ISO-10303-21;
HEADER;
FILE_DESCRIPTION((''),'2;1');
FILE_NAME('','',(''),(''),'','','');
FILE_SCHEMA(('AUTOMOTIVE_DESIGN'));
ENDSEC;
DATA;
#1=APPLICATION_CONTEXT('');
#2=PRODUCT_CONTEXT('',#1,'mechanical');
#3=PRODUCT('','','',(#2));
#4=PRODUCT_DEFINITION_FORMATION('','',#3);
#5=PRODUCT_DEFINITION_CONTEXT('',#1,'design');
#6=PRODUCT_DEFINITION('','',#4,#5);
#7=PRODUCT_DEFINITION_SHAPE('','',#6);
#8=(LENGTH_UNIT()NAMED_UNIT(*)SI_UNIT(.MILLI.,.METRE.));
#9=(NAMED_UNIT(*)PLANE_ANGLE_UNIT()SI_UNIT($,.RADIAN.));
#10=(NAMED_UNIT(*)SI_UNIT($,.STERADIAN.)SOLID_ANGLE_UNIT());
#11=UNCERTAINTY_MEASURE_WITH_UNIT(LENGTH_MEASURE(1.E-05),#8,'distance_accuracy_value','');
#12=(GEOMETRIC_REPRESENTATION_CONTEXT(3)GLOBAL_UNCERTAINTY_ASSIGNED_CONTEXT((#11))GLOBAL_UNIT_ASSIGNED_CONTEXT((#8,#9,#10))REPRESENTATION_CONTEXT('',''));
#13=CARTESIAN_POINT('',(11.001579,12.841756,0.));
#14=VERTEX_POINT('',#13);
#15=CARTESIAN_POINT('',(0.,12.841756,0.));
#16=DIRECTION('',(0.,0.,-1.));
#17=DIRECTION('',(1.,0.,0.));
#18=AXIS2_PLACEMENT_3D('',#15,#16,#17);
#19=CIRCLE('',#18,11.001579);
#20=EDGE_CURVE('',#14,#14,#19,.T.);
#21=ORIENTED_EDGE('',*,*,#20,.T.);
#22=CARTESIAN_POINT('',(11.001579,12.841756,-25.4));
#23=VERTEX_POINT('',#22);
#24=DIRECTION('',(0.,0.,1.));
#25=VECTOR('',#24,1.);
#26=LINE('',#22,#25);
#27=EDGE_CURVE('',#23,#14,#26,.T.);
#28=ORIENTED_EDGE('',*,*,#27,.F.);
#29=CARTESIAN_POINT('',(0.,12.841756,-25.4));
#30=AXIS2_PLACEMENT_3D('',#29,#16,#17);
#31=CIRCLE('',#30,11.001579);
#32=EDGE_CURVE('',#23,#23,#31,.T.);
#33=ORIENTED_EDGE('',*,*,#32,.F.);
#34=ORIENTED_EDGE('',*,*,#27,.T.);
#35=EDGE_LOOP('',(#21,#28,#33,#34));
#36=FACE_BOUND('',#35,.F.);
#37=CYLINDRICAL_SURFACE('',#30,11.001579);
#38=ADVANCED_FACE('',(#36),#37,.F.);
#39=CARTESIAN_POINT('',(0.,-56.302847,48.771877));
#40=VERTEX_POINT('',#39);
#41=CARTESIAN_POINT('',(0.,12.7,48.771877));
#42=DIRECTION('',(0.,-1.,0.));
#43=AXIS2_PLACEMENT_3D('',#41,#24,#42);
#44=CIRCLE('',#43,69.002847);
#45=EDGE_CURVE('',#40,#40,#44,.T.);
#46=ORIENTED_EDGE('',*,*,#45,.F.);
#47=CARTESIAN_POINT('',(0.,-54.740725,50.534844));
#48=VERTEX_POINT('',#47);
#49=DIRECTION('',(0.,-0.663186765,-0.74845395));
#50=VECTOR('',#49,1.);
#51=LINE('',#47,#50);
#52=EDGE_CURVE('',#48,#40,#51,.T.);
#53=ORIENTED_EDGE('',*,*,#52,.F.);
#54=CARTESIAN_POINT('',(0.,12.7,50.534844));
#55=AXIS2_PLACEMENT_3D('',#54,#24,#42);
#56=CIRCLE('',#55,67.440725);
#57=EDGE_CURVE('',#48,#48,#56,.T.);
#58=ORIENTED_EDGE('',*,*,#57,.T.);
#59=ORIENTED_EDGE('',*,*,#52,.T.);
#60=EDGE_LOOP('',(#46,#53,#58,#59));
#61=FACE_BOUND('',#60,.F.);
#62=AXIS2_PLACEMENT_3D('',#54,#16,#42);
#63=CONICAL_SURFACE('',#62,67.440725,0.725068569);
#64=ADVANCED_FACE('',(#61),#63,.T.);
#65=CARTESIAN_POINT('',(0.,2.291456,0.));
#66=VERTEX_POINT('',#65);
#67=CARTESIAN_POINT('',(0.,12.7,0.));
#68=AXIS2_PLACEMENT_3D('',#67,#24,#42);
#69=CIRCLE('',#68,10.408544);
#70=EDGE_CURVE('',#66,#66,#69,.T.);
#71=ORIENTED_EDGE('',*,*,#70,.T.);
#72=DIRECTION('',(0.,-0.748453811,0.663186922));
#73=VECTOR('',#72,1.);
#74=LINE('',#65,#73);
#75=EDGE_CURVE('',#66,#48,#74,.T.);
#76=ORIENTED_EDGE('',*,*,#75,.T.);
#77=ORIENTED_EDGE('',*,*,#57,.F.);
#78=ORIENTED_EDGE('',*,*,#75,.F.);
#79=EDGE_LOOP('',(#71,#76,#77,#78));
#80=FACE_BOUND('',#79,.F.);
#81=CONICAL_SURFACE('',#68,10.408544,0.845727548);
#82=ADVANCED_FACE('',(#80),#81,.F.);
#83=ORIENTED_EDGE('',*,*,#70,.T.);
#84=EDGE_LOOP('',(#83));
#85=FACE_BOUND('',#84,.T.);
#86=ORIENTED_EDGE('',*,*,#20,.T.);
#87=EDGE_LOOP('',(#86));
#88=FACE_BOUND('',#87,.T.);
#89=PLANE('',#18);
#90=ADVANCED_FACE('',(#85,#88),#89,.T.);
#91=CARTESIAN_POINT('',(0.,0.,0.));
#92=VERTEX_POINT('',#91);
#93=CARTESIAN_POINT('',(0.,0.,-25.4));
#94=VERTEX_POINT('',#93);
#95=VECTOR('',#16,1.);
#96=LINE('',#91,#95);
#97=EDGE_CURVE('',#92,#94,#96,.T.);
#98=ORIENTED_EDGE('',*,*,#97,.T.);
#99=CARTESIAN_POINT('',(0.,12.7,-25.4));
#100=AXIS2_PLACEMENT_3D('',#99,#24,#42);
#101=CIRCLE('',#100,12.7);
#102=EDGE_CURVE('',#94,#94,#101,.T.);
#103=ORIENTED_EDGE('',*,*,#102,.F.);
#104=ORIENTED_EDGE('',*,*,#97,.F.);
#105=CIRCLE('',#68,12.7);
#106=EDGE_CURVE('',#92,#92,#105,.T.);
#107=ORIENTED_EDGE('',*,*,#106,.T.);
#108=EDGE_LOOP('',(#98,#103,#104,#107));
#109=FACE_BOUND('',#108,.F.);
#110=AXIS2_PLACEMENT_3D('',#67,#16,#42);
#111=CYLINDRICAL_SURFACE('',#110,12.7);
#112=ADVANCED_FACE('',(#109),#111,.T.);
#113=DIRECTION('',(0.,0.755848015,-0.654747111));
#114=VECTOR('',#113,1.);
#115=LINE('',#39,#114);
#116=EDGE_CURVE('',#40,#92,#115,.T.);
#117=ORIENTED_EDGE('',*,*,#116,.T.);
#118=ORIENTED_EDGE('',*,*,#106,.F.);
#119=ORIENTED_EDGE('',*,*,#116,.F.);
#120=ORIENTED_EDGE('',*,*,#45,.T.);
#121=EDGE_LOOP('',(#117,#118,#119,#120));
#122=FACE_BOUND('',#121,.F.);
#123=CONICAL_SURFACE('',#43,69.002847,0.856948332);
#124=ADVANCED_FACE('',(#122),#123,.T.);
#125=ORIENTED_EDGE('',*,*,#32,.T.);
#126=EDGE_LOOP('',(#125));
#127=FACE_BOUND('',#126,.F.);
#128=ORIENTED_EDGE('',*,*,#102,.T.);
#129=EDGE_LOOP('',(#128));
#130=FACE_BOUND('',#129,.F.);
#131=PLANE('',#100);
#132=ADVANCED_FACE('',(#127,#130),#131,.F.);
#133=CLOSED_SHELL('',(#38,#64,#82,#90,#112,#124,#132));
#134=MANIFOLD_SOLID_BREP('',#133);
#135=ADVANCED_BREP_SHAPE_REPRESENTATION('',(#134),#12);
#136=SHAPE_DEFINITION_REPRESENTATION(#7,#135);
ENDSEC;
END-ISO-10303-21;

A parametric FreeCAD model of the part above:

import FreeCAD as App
import Part
import Sketcher
from FreeCAD import Vector
Q = App.Units.Quantity

doc = App.newDocument("Part")
params = doc.addObject("Spreadsheet::Sheet", "Params")
for row, (alias, value) in enumerate([
    ("sketch1_height", "1 in"),
    ("sketch1_length", "3 in"),
    ("sketch1_width", "0.5 in"),
    ("revolution_angle", "360 deg"),
    ("pocket1_length", "1 in"),
], start=1):
    params.set(f"A{row}", alias)
    params.set(f"B{row}", "=" + value)
    params.setAlias(f"B{row}", alias)

body = doc.addObject("PartDesign::Body", "Body")

# Sketch on YZ plane
sketch1 = body.newObject("Sketcher::SketchObject", "Sketch")
sketch1.AttachmentSupport = (doc.getObject("YZ_Plane"), [""])
sketch1.MapMode = "FlatFace"
sketch1.addGeometry(Part.LineSegment(Vector(-56.302847, 48.771877, 0), Vector(0, 0, 0)), False)
sketch1.addGeometry(Part.LineSegment(Vector(0, 0, 0), Vector(0, -25.4, 0)), False)
sketch1.addGeometry(Part.LineSegment(Vector(0, -25.4, 0), Vector(12.7, -25.4, 0)), False)
sketch1.addGeometry(Part.LineSegment(Vector(12.7, -25.4, 0), Vector(12.7, 0, 0)), False)
sketch1.addGeometry(Part.LineSegment(Vector(12.7, 0, 0), Vector(2.291456, 0, 0)), False)
sketch1.addGeometry(Part.LineSegment(Vector(2.291456, 0, 0), Vector(-54.740725, 50.534844, 0)), False)
sketch1.addGeometry(Part.LineSegment(Vector(-54.740725, 50.534844, 0), Vector(-56.302847, 48.771877, 0)), False)
sketch1.addGeometry(Part.LineSegment(Vector(12.7, -25.4, 0), Vector(12.7, 50.534844, 0)), True)  # axis
sketch1.addConstraint(Sketcher.Constraint("Coincident", 0, 2, 1, 1))
sketch1.addConstraint(Sketcher.Constraint("Coincident", 1, 2, 2, 1))
sketch1.addConstraint(Sketcher.Constraint("Coincident", 2, 2, 3, 1))
sketch1.addConstraint(Sketcher.Constraint("Coincident", 3, 2, 4, 1))
sketch1.addConstraint(Sketcher.Constraint("Coincident", 4, 2, 5, 1))
sketch1.addConstraint(Sketcher.Constraint("Coincident", 5, 2, 6, 1))
sketch1.addConstraint(Sketcher.Constraint("Coincident", 6, 2, 0, 1))
sketch1.addConstraint(Sketcher.Constraint("Vertical", 1))
sketch1.addConstraint(Sketcher.Constraint("Horizontal", 2))
sketch1.addConstraint(Sketcher.Constraint("Vertical", 3))
sketch1.addConstraint(Sketcher.Constraint("Horizontal", 4))
sketch1.addConstraint(Sketcher.Constraint("Vertical", 7))
sketch1.addConstraint(Sketcher.Constraint("Coincident", 0, 2, -1, 1))
sketch1.addConstraint(Sketcher.Constraint("Coincident", 7, 1, 2, 2))
sketch1.addConstraint(Sketcher.Constraint("PointOnObject", 3, 2, -1))
sketch1.addConstraint(Sketcher.Constraint("DistanceY", 1, 2, 1, 1, Q("1 in")))
sketch1.addConstraint(Sketcher.Constraint("Distance", 5, Q("3 in")))
sketch1.addConstraint(Sketcher.Constraint("DistanceX", 2, 1, 2, 2, Q("0.5 in")))
sketch1.addConstraint(Sketcher.Constraint("Distance", 0, 74.489641))
sketch1.addConstraint(Sketcher.Constraint("Distance", 6, 2.355478))
sketch1.addConstraint(Sketcher.Constraint("DistanceX", 4, 2, 4, 1, 10.408544))
sketch1.addConstraint(Sketcher.Constraint("DistanceY", 7, 1, 7, 2, 75.934844))
sketch1.addConstraint(Sketcher.Constraint("DistanceX", 5, 2, 4, 2, 57.032181))
sketch1.setExpression("Constraints[15]", "Params.sketch1_height")
sketch1.setExpression("Constraints[16]", "Params.sketch1_length")
sketch1.setExpression("Constraints[17]", "Params.sketch1_width")
revolution = body.newObject("PartDesign::Revolution", "Revolution")
revolution.Profile = sketch1
revolution.ReferenceAxis = (sketch1, ["Axis0"])
revolution.setExpression("Angle", "Params.revolution_angle")

# Sketch on XY plane
sketch2 = body.newObject("Sketcher::SketchObject", "Sketch001")
sketch2.AttachmentSupport = (doc.getObject("XY_Plane"), [""])
sketch2.MapMode = "FlatFace"
sketch2.AttachmentOffset = App.Placement(Vector(0, 0, -1 * 25.4), App.Rotation())
sketch2.addGeometry(Part.Circle(Vector(0, 13, 0), Vector(0, 0, 1), 11), False)
sketch2.addConstraint(Sketcher.Constraint("PointOnObject", 0, 3, -2))
sketch2.addConstraint(Sketcher.Constraint("Diameter", 0, 22.003158))
sketch2.addConstraint(Sketcher.Constraint("DistanceY", -1, 1, 0, 3, 12.841756))
pocket1 = body.newObject("PartDesign::Pocket", "Pocket")
pocket1.Profile = sketch2
pocket1.setExpression("Length", "Params.pocket1_length")
pocket1.Reversed = True

doc.recompute()
